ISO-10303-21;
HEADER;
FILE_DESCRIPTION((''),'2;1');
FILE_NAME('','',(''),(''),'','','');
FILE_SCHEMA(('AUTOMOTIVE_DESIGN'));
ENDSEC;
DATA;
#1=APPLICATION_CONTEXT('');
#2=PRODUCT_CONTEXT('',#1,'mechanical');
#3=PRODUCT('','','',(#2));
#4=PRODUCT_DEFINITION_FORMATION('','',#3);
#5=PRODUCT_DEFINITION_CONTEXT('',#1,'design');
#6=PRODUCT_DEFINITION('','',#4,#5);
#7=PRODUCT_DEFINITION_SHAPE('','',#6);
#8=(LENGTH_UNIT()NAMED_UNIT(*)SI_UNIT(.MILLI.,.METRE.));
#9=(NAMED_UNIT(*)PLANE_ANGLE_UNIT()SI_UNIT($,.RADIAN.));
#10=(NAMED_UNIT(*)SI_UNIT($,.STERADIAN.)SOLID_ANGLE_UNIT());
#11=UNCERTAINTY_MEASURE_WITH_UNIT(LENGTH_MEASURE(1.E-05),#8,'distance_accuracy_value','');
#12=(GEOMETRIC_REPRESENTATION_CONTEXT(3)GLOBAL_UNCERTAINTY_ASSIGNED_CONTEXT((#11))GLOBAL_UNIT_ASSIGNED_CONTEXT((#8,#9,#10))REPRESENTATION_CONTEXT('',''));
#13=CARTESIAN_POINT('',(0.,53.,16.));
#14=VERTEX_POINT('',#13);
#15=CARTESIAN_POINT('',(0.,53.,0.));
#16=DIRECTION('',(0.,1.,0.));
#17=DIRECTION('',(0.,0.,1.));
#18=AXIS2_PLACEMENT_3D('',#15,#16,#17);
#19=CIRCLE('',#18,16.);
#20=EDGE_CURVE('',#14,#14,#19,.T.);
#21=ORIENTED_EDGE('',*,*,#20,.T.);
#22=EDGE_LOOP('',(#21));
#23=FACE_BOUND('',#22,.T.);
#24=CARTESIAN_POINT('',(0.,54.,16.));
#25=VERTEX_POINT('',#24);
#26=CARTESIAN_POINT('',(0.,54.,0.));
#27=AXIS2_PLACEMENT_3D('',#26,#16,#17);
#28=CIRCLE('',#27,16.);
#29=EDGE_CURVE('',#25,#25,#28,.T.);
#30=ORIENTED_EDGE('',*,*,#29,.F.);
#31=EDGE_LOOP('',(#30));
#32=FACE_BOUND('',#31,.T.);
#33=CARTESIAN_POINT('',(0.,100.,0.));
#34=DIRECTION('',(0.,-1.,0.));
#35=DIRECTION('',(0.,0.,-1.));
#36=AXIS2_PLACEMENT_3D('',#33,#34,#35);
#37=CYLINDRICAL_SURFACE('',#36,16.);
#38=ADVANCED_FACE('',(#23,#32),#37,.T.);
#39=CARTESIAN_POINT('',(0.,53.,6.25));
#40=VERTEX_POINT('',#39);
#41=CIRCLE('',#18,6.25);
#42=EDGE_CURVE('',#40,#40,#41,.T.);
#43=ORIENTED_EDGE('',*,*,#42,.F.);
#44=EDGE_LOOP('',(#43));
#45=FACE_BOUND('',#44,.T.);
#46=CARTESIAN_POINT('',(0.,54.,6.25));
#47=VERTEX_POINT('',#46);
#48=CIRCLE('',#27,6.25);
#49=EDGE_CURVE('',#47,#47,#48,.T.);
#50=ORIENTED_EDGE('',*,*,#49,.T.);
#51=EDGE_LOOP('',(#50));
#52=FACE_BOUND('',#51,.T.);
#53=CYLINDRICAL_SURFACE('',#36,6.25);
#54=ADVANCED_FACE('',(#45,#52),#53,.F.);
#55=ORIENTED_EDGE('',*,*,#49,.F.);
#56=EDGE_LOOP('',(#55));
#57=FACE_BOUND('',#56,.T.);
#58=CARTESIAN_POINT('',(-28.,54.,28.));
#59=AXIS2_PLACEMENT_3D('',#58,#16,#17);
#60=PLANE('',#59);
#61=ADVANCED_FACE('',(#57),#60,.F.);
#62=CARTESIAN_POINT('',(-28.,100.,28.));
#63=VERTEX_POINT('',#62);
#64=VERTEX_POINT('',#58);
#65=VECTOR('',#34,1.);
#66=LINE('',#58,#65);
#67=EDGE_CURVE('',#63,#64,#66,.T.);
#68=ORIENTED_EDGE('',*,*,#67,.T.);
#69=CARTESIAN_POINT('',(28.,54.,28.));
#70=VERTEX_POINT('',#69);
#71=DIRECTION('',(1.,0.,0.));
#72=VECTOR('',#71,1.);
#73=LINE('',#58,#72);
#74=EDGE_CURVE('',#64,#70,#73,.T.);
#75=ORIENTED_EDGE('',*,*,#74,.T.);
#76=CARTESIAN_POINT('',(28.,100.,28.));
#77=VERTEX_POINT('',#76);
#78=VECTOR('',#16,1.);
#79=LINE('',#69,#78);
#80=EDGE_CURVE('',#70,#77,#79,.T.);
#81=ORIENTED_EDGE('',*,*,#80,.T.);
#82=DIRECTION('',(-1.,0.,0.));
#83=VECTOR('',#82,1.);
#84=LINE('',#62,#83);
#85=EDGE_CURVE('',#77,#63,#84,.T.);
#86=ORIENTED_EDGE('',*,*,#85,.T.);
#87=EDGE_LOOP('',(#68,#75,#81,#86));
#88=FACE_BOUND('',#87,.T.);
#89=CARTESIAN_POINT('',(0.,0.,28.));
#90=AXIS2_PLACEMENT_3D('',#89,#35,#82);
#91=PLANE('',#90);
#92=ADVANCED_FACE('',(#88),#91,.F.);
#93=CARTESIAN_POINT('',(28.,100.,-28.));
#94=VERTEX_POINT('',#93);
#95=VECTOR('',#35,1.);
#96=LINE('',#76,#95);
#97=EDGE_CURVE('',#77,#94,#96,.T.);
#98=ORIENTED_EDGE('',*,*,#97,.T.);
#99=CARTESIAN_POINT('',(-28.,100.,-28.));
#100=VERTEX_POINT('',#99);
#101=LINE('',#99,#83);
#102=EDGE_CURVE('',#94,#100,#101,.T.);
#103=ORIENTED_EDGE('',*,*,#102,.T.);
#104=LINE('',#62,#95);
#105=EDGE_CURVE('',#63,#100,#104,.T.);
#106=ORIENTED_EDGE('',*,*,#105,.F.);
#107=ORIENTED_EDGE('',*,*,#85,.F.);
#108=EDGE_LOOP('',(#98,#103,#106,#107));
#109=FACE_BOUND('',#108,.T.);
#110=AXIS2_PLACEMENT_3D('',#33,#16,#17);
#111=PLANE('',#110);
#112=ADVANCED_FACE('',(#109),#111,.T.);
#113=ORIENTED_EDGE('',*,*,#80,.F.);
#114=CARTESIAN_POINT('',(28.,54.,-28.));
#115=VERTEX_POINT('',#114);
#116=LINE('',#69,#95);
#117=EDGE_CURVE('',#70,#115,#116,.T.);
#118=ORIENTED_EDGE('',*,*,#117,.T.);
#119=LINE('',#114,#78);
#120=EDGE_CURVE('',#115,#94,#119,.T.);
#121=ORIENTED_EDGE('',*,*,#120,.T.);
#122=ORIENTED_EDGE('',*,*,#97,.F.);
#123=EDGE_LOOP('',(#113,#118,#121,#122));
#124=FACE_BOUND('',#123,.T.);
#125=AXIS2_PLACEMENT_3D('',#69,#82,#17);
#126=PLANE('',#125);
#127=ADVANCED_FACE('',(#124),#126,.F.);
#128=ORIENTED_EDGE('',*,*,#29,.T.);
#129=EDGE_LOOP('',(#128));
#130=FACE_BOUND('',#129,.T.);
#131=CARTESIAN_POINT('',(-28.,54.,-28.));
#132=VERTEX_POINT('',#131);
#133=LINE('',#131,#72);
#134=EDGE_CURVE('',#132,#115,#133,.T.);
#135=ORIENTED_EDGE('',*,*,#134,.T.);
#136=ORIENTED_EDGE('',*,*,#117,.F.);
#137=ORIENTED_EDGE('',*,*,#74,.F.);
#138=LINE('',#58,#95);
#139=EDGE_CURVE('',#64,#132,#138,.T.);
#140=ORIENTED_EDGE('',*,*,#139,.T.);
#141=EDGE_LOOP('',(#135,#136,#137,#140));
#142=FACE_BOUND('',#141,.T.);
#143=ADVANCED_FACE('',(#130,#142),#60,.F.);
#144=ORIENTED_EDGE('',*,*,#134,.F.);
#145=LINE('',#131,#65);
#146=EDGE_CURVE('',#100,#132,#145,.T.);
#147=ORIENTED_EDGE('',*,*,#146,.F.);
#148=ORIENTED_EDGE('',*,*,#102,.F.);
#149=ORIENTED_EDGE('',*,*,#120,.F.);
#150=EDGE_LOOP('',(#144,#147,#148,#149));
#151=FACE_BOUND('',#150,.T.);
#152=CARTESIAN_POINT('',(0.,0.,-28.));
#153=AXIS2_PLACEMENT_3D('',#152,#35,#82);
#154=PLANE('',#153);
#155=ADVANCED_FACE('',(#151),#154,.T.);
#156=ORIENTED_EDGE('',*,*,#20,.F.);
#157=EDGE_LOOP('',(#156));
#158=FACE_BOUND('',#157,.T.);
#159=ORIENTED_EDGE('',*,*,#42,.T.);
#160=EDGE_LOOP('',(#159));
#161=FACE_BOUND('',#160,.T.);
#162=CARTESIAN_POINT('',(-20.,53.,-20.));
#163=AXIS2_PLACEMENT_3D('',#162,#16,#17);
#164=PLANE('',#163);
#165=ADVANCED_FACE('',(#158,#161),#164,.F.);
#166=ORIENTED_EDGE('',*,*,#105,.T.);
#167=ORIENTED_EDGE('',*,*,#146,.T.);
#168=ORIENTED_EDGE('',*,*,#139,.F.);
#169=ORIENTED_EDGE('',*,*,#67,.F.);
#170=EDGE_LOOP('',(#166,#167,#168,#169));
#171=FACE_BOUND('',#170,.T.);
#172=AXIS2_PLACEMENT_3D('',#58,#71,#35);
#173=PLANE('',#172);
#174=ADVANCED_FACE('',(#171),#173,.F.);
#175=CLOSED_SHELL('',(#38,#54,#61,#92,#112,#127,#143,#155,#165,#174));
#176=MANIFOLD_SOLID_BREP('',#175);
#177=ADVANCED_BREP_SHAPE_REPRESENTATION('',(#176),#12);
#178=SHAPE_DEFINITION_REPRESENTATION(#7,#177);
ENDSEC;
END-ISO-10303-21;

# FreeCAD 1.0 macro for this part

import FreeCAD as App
import Part
import Sketcher

doc = App.newDocument("Part")
params = doc.addObject("Spreadsheet::Sheet", "Params")
for row, (alias, value) in enumerate([
    ("sketch1_diameter", "32 mm"),
    ("sketch1_diameter2", "12.5 mm"),
    ("pad1_length", "100 mm"),
    ("sketch2_width", "40 mm"),
    ("sketch2_height", "55 mm"),
    ("pocket1_length", "40 mm"),
    ("sketch3_width", "56 mm"),
    ("sketch3_height", "46 mm"),
    ("pad2_length", "56 mm"),
    ("sketch4_diameter", "16 mm"),
    ("pad3_length", "52 mm"),
], start=1):
    params.set(f"A{row}", alias)
    params.set(f"B{row}", "=" + value)
    params.setAlias(f"B{row}", alias)

body = doc.addObject("PartDesign::Body", "Body")

sketch1 = body.newObject("Sketcher::SketchObject", "Sketch")
sketch1.AttachmentSupport = (doc.getObject("XZ_Plane"), [""])
sketch1.MapMode = "FlatFace"
sketch1.addGeometry(Part.Circle(App.Vector(0, 0, 0), App.Vector(0, 0, 1), 16), False)
sketch1.addGeometry(Part.Circle(App.Vector(0, 0, 0), App.Vector(0, 0, 1), 6), False)
sketch1.addConstraint(Sketcher.Constraint("Coincident", 0, 3, -1, 1))
sketch1.addConstraint(Sketcher.Constraint("Coincident", 1, 3, -1, 1))
sketch1.addConstraint(Sketcher.Constraint("Diameter", 0, 32.0))
sketch1.addConstraint(Sketcher.Constraint("Diameter", 1, 12.5))
sketch1.setExpression("Constraints[2]", "Params.sketch1_diameter")
sketch1.setExpression("Constraints[3]", "Params.sketch1_diameter2")
pad1 = body.newObject("PartDesign::Pad", "Pad")
pad1.Profile = sketch1
pad1.setExpression("Length", "Params.pad1_length")
pad1.Reversed = True

sketch2 = body.newObject("Sketcher::SketchObject", "Sketch001")
sketch2.AttachmentSupport = (doc.getObject("XY_Plane"), [""])
sketch2.MapMode = "FlatFace"
sketch2.addGeometry(Part.LineSegment(App.Vector(-20, 53, 0), App.Vector(-20, -2, 0)), False)
sketch2.addGeometry(Part.LineSegment(App.Vector(-20, -2, 0), App.Vector(20, -2, 0)), False)
sketch2.addGeometry(Part.LineSegment(App.Vector(20, -2, 0), App.Vector(20, 53, 0)), False)
sketch2.addGeometry(Part.LineSegment(App.Vector(20, 53, 0), App.Vector(-20, 53, 0)), False)
sketch2.addConstraint(Sketcher.Constraint("Coincident", 0, 2, 1, 1))
sketch2.addConstraint(Sketcher.Constraint("Coincident", 1, 2, 2, 1))
sketch2.addConstraint(Sketcher.Constraint("Coincident", 2, 2, 3, 1))
sketch2.addConstraint(Sketcher.Constraint("Coincident", 3, 2, 0, 1))
sketch2.addConstraint(Sketcher.Constraint("Vertical", 0))
sketch2.addConstraint(Sketcher.Constraint("Horizontal", 1))
sketch2.addConstraint(Sketcher.Constraint("Vertical", 2))
sketch2.addConstraint(Sketcher.Constraint("Horizontal", 3))
sketch2.addConstraint(Sketcher.Constraint("DistanceX", 1, 1, 1, 2, 40.0))
sketch2.addConstraint(Sketcher.Constraint("DistanceY", 0, 2, 0, 1, 55.0))
sketch2.addConstraint(Sketcher.Constraint("DistanceX", 0, 2, -1, 1, 20.0))
sketch2.addConstraint(Sketcher.Constraint("DistanceY", 0, 2, -1, 1, 2.0))
sketch2.setExpression("Constraints[8]", "Params.sketch2_width")
sketch2.setExpression("Constraints[9]", "Params.sketch2_height")
pocket1 = body.newObject("PartDesign::Pocket", "Pocket")
pocket1.Profile = sketch2
pocket1.setExpression("Length", "Params.pocket1_length")
pocket1.Midplane = True

sketch3 = body.newObject("Sketcher::SketchObject", "Sketch002")
sketch3.AttachmentSupport = (doc.getObject("XY_Plane"), [""])
sketch3.MapMode = "FlatFace"
sketch3.addGeometry(Part.LineSegment(App.Vector(-28, 100, 0), App.Vector(-28, 54, 0)), False)
sketch3.addGeometry(Part.LineSegment(App.Vector(-28, 54, 0), App.Vector(28, 54, 0)), False)
sketch3.addGeometry(Part.LineSegment(App.Vector(28, 54, 0), App.Vector(28, 100, 0)), False)
sketch3.addGeometry(Part.LineSegment(App.Vector(28, 100, 0), App.Vector(-28, 100, 0)), False)
sketch3.addConstraint(Sketcher.Constraint("Coincident", 0, 2, 1, 1))
sketch3.addConstraint(Sketcher.Constraint("Coincident", 1, 2, 2, 1))
sketch3.addConstraint(Sketcher.Constraint("Coincident", 2, 2, 3, 1))
sketch3.addConstraint(Sketcher.Constraint("Coincident", 3, 2, 0, 1))
sketch3.addConstraint(Sketcher.Constraint("Vertical", 0))
sketch3.addConstraint(Sketcher.Constraint("Horizontal", 1))
sketch3.addConstraint(Sketcher.Constraint("Vertical", 2))
sketch3.addConstraint(Sketcher.Constraint("Horizontal", 3))
sketch3.addConstraint(Sketcher.Constraint("DistanceX", 1, 1, 1, 2, 56.0))
sketch3.addConstraint(Sketcher.Constraint("DistanceY", 0, 2, 0, 1, 46.0))
sketch3.addConstraint(Sketcher.Constraint("DistanceX", 0, 2, -1, 1, 28.0))
sketch3.addConstraint(Sketcher.Constraint("DistanceY", -1, 1, 0, 2, 54.0))
sketch3.setExpression("Constraints[8]", "Params.sketch3_width")
sketch3.setExpression("Constraints[9]", "Params.sketch3_height")
pad2 = body.newObject("PartDesign::Pad", "Pad001")
pad2.Profile = sketch3
pad2.setExpression("Length", "Params.pad2_length")
pad2.Midplane = True

sketch4 = body.newObject("Sketcher::SketchObject", "Sketch003")
sketch4.AttachmentSupport = (doc.getObject("XY_Plane"), [""])
sketch4.MapMode = "FlatFace"
sketch4.addGeometry(Part.Circle(App.Vector(0, 76, 0), App.Vector(0, 0, 1), 8), False)
sketch4.addConstraint(Sketcher.Constraint("PointOnObject", 0, 3, -2))
sketch4.addConstraint(Sketcher.Constraint("Diameter", 0, 16.0))
sketch4.addConstraint(Sketcher.Constraint("DistanceY", -1, 1, 0, 3, 76.0))
sketch4.setExpression("Constraints[1]", "Params.sketch4_diameter")
pad3 = body.newObject("PartDesign::Pad", "Pad002")
pad3.Profile = sketch4
pad3.setExpression("Length", "Params.pad3_length")
pad3.Midplane = True

doc.recompute()
